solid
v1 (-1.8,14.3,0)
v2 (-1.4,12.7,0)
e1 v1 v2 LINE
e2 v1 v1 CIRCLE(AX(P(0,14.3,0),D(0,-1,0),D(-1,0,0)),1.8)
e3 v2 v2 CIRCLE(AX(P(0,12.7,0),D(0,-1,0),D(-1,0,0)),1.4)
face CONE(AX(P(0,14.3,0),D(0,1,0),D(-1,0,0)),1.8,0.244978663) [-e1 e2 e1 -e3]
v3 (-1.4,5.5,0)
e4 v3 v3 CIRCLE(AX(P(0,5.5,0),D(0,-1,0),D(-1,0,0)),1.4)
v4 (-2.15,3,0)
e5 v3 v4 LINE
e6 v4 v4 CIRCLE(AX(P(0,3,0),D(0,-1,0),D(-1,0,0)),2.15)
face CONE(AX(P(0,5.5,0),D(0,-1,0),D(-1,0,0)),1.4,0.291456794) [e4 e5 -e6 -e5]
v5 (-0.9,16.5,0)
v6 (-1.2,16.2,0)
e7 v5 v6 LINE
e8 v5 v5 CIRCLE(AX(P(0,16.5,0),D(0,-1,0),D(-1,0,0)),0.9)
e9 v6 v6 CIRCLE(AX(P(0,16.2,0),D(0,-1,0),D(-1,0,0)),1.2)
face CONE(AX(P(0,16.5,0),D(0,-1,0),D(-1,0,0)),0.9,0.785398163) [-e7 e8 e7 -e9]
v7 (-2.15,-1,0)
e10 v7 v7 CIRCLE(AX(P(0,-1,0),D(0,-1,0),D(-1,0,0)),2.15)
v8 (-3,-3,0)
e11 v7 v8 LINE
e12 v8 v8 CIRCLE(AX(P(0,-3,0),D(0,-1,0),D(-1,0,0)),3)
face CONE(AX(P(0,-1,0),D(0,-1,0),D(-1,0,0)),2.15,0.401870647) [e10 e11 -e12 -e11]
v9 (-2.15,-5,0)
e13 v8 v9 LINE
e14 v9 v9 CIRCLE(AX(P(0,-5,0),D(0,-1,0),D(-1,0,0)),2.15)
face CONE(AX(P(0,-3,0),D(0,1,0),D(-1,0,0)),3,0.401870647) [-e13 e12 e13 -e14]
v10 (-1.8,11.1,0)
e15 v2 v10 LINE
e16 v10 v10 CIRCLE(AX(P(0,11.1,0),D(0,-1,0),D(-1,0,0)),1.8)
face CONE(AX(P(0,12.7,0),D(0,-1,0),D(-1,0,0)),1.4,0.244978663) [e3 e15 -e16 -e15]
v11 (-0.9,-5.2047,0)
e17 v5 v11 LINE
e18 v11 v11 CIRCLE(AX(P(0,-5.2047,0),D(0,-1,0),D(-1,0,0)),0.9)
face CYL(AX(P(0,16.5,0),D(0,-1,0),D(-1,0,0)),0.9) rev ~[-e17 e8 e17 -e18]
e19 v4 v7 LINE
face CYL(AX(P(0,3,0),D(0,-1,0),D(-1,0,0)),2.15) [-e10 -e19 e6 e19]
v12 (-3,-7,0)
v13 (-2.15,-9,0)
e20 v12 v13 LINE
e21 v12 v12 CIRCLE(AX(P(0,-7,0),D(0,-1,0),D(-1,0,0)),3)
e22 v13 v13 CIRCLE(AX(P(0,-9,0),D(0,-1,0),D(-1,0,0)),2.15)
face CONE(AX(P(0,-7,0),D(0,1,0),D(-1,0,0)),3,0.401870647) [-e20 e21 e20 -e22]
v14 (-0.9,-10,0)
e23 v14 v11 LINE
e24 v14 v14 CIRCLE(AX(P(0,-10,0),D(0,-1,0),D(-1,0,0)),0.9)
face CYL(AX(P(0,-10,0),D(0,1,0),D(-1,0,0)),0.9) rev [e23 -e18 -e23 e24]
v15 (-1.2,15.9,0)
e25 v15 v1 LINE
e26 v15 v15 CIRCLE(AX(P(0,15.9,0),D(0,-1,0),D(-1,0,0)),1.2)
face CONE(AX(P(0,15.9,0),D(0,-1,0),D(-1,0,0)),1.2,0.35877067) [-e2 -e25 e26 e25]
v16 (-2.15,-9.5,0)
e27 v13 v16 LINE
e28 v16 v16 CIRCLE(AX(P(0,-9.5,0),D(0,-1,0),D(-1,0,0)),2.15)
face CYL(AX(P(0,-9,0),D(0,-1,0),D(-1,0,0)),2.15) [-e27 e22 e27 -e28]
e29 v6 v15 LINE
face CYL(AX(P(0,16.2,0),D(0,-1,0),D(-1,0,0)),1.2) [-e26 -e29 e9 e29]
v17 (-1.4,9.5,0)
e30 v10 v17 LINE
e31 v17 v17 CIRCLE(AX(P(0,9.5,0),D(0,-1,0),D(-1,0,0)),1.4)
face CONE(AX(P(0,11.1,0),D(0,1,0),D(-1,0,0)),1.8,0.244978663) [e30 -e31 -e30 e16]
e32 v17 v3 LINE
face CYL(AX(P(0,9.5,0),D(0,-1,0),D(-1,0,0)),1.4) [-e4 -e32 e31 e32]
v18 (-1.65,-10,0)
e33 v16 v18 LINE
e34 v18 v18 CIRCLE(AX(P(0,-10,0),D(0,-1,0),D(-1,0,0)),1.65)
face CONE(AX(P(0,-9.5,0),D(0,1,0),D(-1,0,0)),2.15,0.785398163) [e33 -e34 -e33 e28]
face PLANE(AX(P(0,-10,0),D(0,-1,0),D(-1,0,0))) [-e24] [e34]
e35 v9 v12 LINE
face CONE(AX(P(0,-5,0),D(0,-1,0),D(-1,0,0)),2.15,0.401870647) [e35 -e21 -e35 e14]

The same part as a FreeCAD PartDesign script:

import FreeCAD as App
import Part
import Sketcher

V = App.Vector
Q = App.Units.Quantity

doc = App.newDocument("Part")
body = doc.addObject("PartDesign::Body", "Body")

sketch1 = body.newObject("Sketcher::SketchObject", "Sketch")
sketch1.AttachmentSupport = (doc.getObject("XY_Plane"), [""])
sketch1.MapMode = "FlatFace"
sketch1.addGeometry(Part.LineSegment(V(-0.9, -10, 0), V(-0.9, 16.5, 0)), False)
sketch1.addGeometry(Part.LineSegment(V(-0.9, 16.5, 0), V(-1.2, 16.2, 0)), False)
sketch1.addGeometry(Part.LineSegment(V(-1.2, 16.2, 0), V(-1.2, 15.9, 0)), False)
sketch1.addGeometry(Part.LineSegment(V(-1.2, 15.9, 0), V(-1.8, 14.3, 0)), False)
sketch1.addGeometry(Part.LineSegment(V(-1.8, 14.3, 0), V(-1.4, 12.7, 0)), False)
sketch1.addGeometry(Part.LineSegment(V(-1.4, 12.7, 0), V(-1.8, 11.1, 0)), False)
sketch1.addGeometry(Part.LineSegment(V(-1.8, 11.1, 0), V(-1.4, 9.5, 0)), False)
sketch1.addGeometry(Part.LineSegment(V(-1.4, 9.5, 0), V(-1.4, 5.5, 0)), False)
sketch1.addGeometry(Part.LineSegment(V(-1.4, 5.5, 0), V(-2.15, 3, 0)), False)
sketch1.addGeometry(Part.LineSegment(V(-2.15, 3, 0), V(-2.15, -1, 0)), False)
sketch1.addGeometry(Part.LineSegment(V(-2.15, -1, 0), V(-3, -3, 0)), False)
sketch1.addGeometry(Part.LineSegment(V(-3, -3, 0), V(-2.15, -5, 0)), False)
sketch1.addGeometry(Part.LineSegment(V(-2.15, -5, 0), V(-3, -7, 0)), False)
sketch1.addGeometry(Part.LineSegment(V(-3, -7, 0), V(-2.15, -9, 0)), False)
sketch1.addGeometry(Part.LineSegment(V(-2.15, -9, 0), V(-2.15, -9.5, 0)), False)
sketch1.addGeometry(Part.LineSegment(V(-2.15, -9.5, 0), V(-1.65, -10, 0)), False)
sketch1.addGeometry(Part.LineSegment(V(-1.65, -10, 0), V(-0.9, -10, 0)), False)
sketch1.addConstraint(Sketcher.Constraint("Coincident", 0, 2, 1, 1))
sketch1.addConstraint(Sketcher.Constraint("Coincident", 1, 2, 2, 1))
sketch1.addConstraint(Sketcher.Constraint("Coincident", 2, 2, 3, 1))
sketch1.addConstraint(Sketcher.Constraint("Coincident", 3, 2, 4, 1))
sketch1.addConstraint(Sketcher.Constraint("Coincident", 4, 2, 5, 1))
sketch1.addConstraint(Sketcher.Constraint("Coincident", 5, 2, 6, 1))
sketch1.addConstraint(Sketcher.Constraint("Coincident", 6, 2, 7, 1))
sketch1.addConstraint(Sketcher.Constraint("Coincident", 7, 2, 8, 1))
sketch1.addConstraint(Sketcher.Constraint("Coincident", 8, 2, 9, 1))
sketch1.addConstraint(Sketcher.Constraint("Coincident", 9, 2, 10, 1))
sketch1.addConstraint(Sketcher.Constraint("Coincident", 10, 2, 11, 1))
sketch1.addConstraint(Sketcher.Constraint("Coincident", 11, 2, 12, 1))
sketch1.addConstraint(Sketcher.Constraint("Coincident", 12, 2, 13, 1))
sketch1.addConstraint(Sketcher.Constraint("Coincident", 13, 2, 14, 1))
sketch1.addConstraint(Sketcher.Constraint("Coincident", 14, 2, 15, 1))
sketch1.addConstraint(Sketcher.Constraint("Coincident", 15, 2, 16, 1))
sketch1.addConstraint(Sketcher.Constraint("Coincident", 16, 2, 0, 1))
sketch1.addConstraint(Sketcher.Constraint("Vertical", 0))
sketch1.addConstraint(Sketcher.Constraint("Vertical", 2))
sketch1.addConstraint(Sketcher.Constraint("Vertical", 7))
sketch1.addConstraint(Sketcher.Constraint("Vertical", 9))
sketch1.addConstraint(Sketcher.Constraint("Vertical", 14))
sketch1.addConstraint(Sketcher.Constraint("Horizontal", 16))
sketch1.addConstraint(Sketcher.Constraint("Parallel", 4, 6))
sketch1.addConstraint(Sketcher.Constraint("Parallel", 10, 12))
sketch1.addConstraint(Sketcher.Constraint("Parallel", 11, 13))
sketch1.addConstraint(Sketcher.Constraint("Perpendicular", 1, 15))
sketch1.addConstraint(Sketcher.Constraint("Vertical", 3, 2, 5, 2))
sketch1.addConstraint(Sketcher.Constraint("Vertical", 4, 2, 6, 2))
sketch1.addConstraint(Sketcher.Constraint("Vertical", 9, 2, 11, 2))
sketch1.addConstraint(Sketcher.Constraint("Vertical", 10, 2, 12, 2))
sketch1.addConstraint(Sketcher.Constraint("Vertical", 11, 2, 13, 2))
sketch1.addConstraint(Sketcher.Constraint("Equal", 7, 9))
sketch1.addConstraint(Sketcher.Constraint("Equal", 4, 5))
sketch1.addConstraint(Sketcher.Constraint("Equal", 10, 11))
sketch1.addConstraint(Sketcher.Constraint("DistanceY", 7, 2, 7, 1, 4.0))
sketch1.addConstraint(Sketcher.Constraint("Angle", 15, Q("-45 deg")))
sketch1.addConstraint(Sketcher.Constraint("DistanceY", 2, 2, 2, 1, 0.3))
sketch1.addConstraint(Sketcher.Constraint("DistanceY", 14, 2, 14, 1, 0.5))
sketch1.addConstraint(Sketcher.Constraint("DistanceY", -1, 1, 8, 2, 3.0))
sketch1.addConstraint(Sketcher.Constraint("DistanceX", 10, 2, -1, 1, 3.0))
sketch1.addConstraint(Sketcher.Constraint("DistanceY", 10, 2, -1, 1, 3.0))
sketch1.addConstraint(Sketcher.Constraint("DistanceY", 15, 2, -1, 1, 10.0))
sketch1.addConstraint(Sketcher.Constraint("DistanceX", 0, 2, -1, 1, 0.9))
sketch1.addConstraint(Sketcher.Constraint("DistanceX", 1, 2, -1, 1, 1.2))
sketch1.addConstraint(Sketcher.Constraint("DistanceX", 3, 2, -1, 1, 1.8))
sketch1.addConstraint(Sketcher.Constraint("DistanceX", 4, 2, -1, 1, 1.4))
sketch1.addConstraint(Sketcher.Constraint("DistanceY", 3, 2, 2, 2, 1.6))
sketch1.addConstraint(Sketcher.Constraint("DistanceY", 4, 2, 3, 2, 1.6))
sketch1.addConstraint(Sketcher.Constraint("DistanceY", 8, 2, 7, 2, 2.5))
sketch1.addConstraint(Sketcher.Constraint("DistanceX", 8, 2, -1, 1, 2.15))
revolution = body.newObject("PartDesign::Revolution", "Revolution")
revolution.Profile = sketch1
revolution.ReferenceAxis = (sketch1, ["V_Axis"])
revolution.Angle = 360

doc.recompute()
